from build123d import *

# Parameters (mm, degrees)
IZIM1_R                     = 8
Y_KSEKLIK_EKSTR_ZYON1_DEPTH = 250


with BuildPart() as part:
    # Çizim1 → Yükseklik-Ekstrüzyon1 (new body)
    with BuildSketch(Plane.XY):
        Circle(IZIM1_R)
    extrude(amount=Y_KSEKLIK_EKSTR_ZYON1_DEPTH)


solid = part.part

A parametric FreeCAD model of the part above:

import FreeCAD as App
import Part
import Sketcher
from FreeCAD import Vector
Q = App.Units.Quantity

doc = App.newDocument("Part")
body = doc.addObject("PartDesign::Body", "Body")

sketch1 = body.newObject("Sketcher::SketchObject", "Sketch")
sketch1.AttachmentSupport = (doc.getObject("XY_Plane"), [""])
sketch1.MapMode = "FlatFace"
sketch1.addGeometry(Part.Circle(Vector(0, 0, 0), Vector(0, 0, 1), 8), False)
sketch1.addConstraint(Sketcher.Constraint("Coincident", 0, 3, -1, 1))
sketch1.addConstraint(Sketcher.Constraint("Diameter", 0, Q("16 mm")))
pad1 = body.newObject("PartDesign::Pad", "Pad")
pad1.Profile = sketch1
pad1.Length = 250

doc.recompute()
